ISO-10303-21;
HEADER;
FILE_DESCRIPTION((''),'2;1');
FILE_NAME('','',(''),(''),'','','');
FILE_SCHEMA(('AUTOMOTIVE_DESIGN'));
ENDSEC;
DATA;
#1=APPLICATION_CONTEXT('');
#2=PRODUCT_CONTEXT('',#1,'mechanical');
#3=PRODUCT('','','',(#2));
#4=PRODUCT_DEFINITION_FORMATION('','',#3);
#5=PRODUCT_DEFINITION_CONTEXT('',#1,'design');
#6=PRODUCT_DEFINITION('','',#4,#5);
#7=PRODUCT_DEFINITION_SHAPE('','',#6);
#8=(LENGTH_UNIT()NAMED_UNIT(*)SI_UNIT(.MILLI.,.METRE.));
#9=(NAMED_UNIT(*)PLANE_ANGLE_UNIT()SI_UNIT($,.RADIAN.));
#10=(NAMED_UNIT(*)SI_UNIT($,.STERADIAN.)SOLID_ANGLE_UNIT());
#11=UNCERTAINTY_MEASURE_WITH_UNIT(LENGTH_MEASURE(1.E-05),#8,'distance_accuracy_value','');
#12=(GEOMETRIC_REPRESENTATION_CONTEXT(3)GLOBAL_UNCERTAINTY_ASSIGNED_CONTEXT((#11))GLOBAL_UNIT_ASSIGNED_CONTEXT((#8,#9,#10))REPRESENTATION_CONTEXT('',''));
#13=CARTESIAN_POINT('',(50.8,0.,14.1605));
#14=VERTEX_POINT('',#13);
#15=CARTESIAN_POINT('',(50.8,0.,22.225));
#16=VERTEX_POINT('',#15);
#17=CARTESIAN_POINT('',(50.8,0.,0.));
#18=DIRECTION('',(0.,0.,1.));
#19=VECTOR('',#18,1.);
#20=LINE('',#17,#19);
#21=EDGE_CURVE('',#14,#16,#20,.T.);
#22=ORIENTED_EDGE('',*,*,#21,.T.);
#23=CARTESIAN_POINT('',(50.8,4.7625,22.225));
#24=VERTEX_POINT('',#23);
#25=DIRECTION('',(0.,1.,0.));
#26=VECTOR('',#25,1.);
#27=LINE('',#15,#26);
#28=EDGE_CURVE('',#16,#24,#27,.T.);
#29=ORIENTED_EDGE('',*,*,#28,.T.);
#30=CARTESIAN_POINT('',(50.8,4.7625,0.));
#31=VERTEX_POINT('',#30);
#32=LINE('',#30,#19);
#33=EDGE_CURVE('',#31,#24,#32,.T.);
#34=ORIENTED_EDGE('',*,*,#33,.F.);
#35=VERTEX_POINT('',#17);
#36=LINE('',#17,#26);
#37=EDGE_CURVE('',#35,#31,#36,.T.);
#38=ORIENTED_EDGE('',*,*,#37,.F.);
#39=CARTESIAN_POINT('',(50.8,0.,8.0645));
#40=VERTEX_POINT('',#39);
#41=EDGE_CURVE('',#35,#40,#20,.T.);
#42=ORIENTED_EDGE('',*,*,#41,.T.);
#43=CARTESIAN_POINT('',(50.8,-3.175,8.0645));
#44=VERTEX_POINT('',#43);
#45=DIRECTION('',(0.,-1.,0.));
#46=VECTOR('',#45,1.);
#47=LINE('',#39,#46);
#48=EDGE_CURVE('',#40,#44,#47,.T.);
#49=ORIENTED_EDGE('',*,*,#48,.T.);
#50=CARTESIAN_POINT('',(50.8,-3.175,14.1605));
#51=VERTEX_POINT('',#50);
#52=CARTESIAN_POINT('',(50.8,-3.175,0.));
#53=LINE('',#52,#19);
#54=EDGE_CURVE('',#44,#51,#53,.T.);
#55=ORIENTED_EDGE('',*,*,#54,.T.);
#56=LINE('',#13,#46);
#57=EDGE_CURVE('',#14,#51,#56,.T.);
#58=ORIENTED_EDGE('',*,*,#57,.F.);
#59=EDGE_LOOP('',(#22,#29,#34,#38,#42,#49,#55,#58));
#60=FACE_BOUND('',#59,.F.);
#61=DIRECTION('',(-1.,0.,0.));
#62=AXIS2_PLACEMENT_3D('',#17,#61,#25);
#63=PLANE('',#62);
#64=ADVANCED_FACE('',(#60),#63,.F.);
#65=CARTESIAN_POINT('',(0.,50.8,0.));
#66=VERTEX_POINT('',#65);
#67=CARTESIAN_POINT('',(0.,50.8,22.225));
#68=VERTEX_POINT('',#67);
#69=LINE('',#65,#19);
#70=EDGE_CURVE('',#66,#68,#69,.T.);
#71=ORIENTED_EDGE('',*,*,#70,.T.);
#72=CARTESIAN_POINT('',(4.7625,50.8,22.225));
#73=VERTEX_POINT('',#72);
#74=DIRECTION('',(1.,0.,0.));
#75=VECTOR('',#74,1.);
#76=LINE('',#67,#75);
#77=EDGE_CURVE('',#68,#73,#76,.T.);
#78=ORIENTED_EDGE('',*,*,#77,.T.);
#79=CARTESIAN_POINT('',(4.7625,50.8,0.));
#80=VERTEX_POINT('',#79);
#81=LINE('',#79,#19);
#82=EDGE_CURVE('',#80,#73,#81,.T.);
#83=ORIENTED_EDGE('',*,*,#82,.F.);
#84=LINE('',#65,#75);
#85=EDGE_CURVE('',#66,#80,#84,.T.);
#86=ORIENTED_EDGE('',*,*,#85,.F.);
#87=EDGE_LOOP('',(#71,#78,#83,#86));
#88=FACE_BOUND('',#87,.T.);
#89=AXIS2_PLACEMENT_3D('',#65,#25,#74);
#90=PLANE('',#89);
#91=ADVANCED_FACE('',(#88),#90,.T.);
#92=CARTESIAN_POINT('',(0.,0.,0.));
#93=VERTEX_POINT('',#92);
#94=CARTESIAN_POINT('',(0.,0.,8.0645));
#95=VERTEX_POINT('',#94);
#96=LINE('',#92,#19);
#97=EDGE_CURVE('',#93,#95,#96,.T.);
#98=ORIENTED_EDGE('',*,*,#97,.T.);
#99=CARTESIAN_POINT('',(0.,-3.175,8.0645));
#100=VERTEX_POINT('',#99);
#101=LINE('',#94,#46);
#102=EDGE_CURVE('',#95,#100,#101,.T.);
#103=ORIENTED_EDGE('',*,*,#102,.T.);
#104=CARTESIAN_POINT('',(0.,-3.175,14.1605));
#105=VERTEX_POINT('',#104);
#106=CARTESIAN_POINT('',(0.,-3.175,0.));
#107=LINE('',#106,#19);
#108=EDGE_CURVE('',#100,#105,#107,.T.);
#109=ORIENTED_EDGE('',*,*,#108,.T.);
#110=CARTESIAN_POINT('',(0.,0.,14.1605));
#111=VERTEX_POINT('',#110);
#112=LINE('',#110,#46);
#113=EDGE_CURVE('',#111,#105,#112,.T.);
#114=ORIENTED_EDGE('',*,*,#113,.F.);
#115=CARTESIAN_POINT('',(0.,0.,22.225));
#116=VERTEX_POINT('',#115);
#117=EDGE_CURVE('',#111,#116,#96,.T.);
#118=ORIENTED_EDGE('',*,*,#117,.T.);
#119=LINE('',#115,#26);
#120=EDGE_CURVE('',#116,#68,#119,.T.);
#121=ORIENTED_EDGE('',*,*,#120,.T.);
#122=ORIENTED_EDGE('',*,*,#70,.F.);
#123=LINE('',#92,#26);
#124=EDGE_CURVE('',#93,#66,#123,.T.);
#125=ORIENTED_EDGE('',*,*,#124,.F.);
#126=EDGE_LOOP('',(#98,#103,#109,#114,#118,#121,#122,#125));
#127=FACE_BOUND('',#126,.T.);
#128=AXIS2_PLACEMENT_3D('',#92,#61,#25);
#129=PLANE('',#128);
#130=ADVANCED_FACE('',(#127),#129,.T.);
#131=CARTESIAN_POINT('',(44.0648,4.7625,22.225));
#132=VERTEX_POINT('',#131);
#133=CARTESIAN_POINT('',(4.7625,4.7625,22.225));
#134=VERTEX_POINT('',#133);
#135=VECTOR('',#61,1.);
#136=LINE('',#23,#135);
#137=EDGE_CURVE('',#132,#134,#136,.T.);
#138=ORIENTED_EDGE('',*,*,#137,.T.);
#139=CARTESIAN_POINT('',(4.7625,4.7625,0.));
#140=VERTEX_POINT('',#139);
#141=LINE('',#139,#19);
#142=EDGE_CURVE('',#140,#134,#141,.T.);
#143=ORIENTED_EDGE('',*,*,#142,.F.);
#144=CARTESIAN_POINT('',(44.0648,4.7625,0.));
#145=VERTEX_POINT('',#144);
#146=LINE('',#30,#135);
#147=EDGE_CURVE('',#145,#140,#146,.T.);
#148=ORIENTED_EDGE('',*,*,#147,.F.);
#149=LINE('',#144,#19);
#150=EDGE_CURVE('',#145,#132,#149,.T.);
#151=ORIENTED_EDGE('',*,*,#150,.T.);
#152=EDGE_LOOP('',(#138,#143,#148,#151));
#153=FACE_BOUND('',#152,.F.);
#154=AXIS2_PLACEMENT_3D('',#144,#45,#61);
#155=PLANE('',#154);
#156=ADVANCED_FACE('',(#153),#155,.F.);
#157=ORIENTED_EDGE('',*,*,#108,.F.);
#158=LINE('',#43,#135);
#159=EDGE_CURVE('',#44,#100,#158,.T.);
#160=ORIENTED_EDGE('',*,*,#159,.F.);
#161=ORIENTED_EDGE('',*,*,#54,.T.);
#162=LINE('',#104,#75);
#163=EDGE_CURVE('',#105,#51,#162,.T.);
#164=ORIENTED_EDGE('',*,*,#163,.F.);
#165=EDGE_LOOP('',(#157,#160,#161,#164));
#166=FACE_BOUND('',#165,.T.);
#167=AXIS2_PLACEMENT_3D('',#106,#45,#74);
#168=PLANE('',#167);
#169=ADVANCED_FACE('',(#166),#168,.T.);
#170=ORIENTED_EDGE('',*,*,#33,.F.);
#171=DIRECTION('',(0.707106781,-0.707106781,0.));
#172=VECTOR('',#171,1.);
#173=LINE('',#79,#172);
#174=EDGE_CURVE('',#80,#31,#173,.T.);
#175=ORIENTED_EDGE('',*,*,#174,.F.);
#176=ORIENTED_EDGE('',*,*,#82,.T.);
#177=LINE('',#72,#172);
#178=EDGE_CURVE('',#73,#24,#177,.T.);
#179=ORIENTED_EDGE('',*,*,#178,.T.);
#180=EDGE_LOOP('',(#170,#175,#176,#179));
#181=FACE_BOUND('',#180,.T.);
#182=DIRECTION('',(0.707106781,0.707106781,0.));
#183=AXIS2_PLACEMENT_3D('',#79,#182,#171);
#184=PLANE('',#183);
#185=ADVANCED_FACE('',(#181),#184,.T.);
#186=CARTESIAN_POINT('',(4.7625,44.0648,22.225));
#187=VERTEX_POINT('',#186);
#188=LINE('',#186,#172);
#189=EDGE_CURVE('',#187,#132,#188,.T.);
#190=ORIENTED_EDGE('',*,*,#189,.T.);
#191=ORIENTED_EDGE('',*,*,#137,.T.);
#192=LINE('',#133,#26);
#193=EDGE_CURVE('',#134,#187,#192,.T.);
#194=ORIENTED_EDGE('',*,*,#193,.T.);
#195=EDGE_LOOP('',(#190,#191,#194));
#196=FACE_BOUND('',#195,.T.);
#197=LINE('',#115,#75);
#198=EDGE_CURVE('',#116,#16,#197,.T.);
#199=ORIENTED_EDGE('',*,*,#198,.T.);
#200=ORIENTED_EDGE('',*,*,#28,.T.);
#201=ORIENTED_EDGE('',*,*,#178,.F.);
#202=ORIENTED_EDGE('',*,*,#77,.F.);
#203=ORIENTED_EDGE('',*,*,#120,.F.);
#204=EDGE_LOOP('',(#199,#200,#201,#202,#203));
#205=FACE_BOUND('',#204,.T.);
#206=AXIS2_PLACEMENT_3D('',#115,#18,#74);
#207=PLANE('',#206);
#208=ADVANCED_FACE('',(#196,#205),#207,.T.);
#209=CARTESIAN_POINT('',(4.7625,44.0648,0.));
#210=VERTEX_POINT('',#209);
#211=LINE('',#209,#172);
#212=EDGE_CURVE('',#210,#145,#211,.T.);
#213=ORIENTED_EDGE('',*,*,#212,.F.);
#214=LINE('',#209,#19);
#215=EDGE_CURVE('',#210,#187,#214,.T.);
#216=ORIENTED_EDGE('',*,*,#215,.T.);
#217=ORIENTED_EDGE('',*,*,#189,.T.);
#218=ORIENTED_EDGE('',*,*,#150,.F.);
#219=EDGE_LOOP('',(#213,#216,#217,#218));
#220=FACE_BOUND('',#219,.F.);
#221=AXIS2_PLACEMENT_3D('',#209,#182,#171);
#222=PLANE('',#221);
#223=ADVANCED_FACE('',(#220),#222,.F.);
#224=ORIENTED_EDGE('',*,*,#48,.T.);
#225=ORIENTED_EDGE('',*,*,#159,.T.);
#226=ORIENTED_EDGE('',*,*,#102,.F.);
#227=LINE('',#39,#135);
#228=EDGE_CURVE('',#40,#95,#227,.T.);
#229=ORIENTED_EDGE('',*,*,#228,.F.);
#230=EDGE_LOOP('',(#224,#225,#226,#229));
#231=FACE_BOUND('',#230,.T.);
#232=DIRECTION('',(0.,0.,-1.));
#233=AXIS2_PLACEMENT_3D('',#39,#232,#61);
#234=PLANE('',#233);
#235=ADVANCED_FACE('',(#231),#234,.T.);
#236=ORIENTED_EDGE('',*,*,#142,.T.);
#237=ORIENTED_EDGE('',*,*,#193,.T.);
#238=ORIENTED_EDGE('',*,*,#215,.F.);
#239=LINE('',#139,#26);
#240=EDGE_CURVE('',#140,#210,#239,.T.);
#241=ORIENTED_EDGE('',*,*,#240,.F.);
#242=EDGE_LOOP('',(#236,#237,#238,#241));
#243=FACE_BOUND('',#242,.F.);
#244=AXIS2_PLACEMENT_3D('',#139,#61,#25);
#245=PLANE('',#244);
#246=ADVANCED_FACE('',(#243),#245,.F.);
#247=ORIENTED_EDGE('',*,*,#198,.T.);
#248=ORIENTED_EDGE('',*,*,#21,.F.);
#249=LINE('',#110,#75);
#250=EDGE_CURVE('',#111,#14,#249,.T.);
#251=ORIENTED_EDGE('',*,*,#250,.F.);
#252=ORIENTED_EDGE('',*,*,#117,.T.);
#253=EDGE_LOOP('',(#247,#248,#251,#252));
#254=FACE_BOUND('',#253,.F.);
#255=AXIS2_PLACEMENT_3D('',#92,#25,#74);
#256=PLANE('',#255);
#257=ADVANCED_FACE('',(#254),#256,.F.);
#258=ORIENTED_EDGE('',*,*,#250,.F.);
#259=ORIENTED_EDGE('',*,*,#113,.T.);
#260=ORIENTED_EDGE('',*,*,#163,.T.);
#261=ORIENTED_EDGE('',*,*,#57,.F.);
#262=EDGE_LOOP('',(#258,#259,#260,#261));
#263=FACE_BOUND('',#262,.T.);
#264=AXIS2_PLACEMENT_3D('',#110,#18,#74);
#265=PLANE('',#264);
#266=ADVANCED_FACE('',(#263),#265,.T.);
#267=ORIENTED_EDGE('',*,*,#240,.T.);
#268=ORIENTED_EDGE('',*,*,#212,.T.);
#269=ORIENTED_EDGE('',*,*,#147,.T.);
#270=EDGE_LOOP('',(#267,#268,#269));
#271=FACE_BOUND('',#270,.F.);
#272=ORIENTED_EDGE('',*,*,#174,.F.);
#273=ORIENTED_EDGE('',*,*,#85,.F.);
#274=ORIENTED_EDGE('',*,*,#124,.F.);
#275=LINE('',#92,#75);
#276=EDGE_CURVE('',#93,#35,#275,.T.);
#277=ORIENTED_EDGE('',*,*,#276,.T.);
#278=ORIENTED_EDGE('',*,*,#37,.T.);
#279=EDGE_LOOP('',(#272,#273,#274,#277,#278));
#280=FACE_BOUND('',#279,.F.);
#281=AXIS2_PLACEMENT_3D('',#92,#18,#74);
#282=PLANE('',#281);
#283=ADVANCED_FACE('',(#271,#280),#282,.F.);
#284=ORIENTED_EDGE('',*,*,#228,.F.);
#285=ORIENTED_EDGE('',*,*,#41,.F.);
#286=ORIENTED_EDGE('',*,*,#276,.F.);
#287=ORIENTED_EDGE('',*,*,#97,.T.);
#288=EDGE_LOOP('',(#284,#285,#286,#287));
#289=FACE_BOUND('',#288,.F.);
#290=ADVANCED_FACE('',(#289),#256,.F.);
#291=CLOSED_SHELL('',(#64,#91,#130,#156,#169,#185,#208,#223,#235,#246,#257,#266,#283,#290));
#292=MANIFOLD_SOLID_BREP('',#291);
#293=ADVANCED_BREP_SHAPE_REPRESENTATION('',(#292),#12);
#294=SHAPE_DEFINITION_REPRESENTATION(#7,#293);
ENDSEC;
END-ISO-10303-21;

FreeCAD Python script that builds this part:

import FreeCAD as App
import Part
import Sketcher
Q = App.Units.Quantity

doc = App.newDocument("Part")
body = doc.addObject("PartDesign::Body", "Body")

# Sketch on XY plane
sketch1 = doc.addObject("Sketcher::SketchObject", "Sketch")
body.addObject(sketch1)
sketch1.AttachmentSupport = (doc.XY_Plane, [""])
sketch1.MapMode = "FlatFace"
sketch1.addGeometry([
    Part.LineSegment(App.Vector(0, 50.8, 0), App.Vector(0, 0, 0)),  # 0
    Part.LineSegment(App.Vector(0, 0, 0), App.Vector(50.8, 0, 0)),  # 1
    Part.LineSegment(App.Vector(50.8, 0, 0), App.Vector(50.8, 4.8, 0)),  # 2
    Part.LineSegment(App.Vector(50.8, 4.8, 0), App.Vector(4.8, 50.8, 0)),  # 3
    Part.LineSegment(App.Vector(4.8, 50.8, 0), App.Vector(0, 50.8, 0)),  # 4
    Part.LineSegment(App.Vector(4.8, 4.8, 0), App.Vector(4.8, 44.1, 0)),  # 5
    Part.LineSegment(App.Vector(4.8, 44.1, 0), App.Vector(44.1, 4.8, 0)),  # 6
    Part.LineSegment(App.Vector(44.1, 4.8, 0), App.Vector(4.8, 4.8, 0)),  # 7
], False)
sketch1.addConstraint([
    Sketcher.Constraint("Coincident", 0, 2, 1, 1),
    Sketcher.Constraint("Coincident", 1, 2, 2, 1),
    Sketcher.Constraint("Coincident", 2, 2, 3, 1),
    Sketcher.Constraint("Coincident", 3, 2, 4, 1),
    Sketcher.Constraint("Coincident", 4, 2, 0, 1),
    Sketcher.Constraint("Coincident", 5, 2, 6, 1),
    Sketcher.Constraint("Coincident", 6, 2, 7, 1),
    Sketcher.Constraint("Coincident", 7, 2, 5, 1),
    Sketcher.Constraint("Vertical", 0),
    Sketcher.Constraint("Horizontal", 1),
    Sketcher.Constraint("Vertical", 2),
    Sketcher.Constraint("Horizontal", 4),
    Sketcher.Constraint("Vertical", 5),
    Sketcher.Constraint("Horizontal", 7),
    Sketcher.Constraint("Coincident", 0, 2, -1, 1),
    Sketcher.Constraint("Parallel", 3, 6),
    Sketcher.Constraint("Horizontal", 2, 2, 6, 2),
    Sketcher.Constraint("Vertical", 3, 2, 5, 2),
    Sketcher.Constraint("Equal", 1, 0),
    Sketcher.Constraint("Equal", 4, 2),
    Sketcher.Constraint("DistanceX", 1, 1, 1, 2, Q("2 in")),
    Sketcher.Constraint("DistanceX", 4, 2, 4, 1, Q("0.1875 in")),
    Sketcher.Constraint("DistanceX", 7, 2, 7, 1, 39.3023),
])
pad1 = doc.addObject("PartDesign::Pad", "Pad")
body.addObject(pad1)
pad1.Profile = sketch1
pad1.Length = Q("0.875 in")

# Sketch on XZ plane
sketch2 = doc.addObject("Sketcher::SketchObject", "Sketch001")
body.addObject(sketch2)
sketch2.AttachmentSupport = (doc.XZ_Plane, [""])
sketch2.MapMode = "FlatFace"
sketch2.addGeometry([
    Part.LineSegment(App.Vector(0, 14, 0), App.Vector(0, 8, 0)),
    Part.LineSegment(App.Vector(0, 8, 0), App.Vector(51, 8, 0)),
    Part.LineSegment(App.Vector(51, 8, 0), App.Vector(51, 14, 0)),
    Part.LineSegment(App.Vector(51, 14, 0), App.Vector(0, 14, 0)),
], False)
sketch2.addConstraint([
    Sketcher.Constraint("Coincident", 0, 2, 1, 1),
    Sketcher.Constraint("Coincident", 1, 2, 2, 1),
    Sketcher.Constraint("Coincident", 2, 2, 3, 1),
    Sketcher.Constraint("Coincident", 3, 2, 0, 1),
    Sketcher.Constraint("Vertical", 0),
    Sketcher.Constraint("Horizontal", 1),
    Sketcher.Constraint("Vertical", 2),
    Sketcher.Constraint("Horizontal", 3),
    Sketcher.Constraint("PointOnObject", 0, 2, -2),
    Sketcher.Constraint("DistanceY", 0, 2, 0, 1, Q("0.24 in")),
    Sketcher.Constraint("DistanceX", 1, 1, 1, 2, Q("2 in")),
    Sketcher.Constraint("DistanceY", -1, 1, 0, 2, Q("0.3175 in")),
])
pad2 = doc.addObject("PartDesign::Pad", "Pad001")
body.addObject(pad2)
pad2.Profile = sketch2
pad2.Length = Q("0.125 in")

doc.recompute()
